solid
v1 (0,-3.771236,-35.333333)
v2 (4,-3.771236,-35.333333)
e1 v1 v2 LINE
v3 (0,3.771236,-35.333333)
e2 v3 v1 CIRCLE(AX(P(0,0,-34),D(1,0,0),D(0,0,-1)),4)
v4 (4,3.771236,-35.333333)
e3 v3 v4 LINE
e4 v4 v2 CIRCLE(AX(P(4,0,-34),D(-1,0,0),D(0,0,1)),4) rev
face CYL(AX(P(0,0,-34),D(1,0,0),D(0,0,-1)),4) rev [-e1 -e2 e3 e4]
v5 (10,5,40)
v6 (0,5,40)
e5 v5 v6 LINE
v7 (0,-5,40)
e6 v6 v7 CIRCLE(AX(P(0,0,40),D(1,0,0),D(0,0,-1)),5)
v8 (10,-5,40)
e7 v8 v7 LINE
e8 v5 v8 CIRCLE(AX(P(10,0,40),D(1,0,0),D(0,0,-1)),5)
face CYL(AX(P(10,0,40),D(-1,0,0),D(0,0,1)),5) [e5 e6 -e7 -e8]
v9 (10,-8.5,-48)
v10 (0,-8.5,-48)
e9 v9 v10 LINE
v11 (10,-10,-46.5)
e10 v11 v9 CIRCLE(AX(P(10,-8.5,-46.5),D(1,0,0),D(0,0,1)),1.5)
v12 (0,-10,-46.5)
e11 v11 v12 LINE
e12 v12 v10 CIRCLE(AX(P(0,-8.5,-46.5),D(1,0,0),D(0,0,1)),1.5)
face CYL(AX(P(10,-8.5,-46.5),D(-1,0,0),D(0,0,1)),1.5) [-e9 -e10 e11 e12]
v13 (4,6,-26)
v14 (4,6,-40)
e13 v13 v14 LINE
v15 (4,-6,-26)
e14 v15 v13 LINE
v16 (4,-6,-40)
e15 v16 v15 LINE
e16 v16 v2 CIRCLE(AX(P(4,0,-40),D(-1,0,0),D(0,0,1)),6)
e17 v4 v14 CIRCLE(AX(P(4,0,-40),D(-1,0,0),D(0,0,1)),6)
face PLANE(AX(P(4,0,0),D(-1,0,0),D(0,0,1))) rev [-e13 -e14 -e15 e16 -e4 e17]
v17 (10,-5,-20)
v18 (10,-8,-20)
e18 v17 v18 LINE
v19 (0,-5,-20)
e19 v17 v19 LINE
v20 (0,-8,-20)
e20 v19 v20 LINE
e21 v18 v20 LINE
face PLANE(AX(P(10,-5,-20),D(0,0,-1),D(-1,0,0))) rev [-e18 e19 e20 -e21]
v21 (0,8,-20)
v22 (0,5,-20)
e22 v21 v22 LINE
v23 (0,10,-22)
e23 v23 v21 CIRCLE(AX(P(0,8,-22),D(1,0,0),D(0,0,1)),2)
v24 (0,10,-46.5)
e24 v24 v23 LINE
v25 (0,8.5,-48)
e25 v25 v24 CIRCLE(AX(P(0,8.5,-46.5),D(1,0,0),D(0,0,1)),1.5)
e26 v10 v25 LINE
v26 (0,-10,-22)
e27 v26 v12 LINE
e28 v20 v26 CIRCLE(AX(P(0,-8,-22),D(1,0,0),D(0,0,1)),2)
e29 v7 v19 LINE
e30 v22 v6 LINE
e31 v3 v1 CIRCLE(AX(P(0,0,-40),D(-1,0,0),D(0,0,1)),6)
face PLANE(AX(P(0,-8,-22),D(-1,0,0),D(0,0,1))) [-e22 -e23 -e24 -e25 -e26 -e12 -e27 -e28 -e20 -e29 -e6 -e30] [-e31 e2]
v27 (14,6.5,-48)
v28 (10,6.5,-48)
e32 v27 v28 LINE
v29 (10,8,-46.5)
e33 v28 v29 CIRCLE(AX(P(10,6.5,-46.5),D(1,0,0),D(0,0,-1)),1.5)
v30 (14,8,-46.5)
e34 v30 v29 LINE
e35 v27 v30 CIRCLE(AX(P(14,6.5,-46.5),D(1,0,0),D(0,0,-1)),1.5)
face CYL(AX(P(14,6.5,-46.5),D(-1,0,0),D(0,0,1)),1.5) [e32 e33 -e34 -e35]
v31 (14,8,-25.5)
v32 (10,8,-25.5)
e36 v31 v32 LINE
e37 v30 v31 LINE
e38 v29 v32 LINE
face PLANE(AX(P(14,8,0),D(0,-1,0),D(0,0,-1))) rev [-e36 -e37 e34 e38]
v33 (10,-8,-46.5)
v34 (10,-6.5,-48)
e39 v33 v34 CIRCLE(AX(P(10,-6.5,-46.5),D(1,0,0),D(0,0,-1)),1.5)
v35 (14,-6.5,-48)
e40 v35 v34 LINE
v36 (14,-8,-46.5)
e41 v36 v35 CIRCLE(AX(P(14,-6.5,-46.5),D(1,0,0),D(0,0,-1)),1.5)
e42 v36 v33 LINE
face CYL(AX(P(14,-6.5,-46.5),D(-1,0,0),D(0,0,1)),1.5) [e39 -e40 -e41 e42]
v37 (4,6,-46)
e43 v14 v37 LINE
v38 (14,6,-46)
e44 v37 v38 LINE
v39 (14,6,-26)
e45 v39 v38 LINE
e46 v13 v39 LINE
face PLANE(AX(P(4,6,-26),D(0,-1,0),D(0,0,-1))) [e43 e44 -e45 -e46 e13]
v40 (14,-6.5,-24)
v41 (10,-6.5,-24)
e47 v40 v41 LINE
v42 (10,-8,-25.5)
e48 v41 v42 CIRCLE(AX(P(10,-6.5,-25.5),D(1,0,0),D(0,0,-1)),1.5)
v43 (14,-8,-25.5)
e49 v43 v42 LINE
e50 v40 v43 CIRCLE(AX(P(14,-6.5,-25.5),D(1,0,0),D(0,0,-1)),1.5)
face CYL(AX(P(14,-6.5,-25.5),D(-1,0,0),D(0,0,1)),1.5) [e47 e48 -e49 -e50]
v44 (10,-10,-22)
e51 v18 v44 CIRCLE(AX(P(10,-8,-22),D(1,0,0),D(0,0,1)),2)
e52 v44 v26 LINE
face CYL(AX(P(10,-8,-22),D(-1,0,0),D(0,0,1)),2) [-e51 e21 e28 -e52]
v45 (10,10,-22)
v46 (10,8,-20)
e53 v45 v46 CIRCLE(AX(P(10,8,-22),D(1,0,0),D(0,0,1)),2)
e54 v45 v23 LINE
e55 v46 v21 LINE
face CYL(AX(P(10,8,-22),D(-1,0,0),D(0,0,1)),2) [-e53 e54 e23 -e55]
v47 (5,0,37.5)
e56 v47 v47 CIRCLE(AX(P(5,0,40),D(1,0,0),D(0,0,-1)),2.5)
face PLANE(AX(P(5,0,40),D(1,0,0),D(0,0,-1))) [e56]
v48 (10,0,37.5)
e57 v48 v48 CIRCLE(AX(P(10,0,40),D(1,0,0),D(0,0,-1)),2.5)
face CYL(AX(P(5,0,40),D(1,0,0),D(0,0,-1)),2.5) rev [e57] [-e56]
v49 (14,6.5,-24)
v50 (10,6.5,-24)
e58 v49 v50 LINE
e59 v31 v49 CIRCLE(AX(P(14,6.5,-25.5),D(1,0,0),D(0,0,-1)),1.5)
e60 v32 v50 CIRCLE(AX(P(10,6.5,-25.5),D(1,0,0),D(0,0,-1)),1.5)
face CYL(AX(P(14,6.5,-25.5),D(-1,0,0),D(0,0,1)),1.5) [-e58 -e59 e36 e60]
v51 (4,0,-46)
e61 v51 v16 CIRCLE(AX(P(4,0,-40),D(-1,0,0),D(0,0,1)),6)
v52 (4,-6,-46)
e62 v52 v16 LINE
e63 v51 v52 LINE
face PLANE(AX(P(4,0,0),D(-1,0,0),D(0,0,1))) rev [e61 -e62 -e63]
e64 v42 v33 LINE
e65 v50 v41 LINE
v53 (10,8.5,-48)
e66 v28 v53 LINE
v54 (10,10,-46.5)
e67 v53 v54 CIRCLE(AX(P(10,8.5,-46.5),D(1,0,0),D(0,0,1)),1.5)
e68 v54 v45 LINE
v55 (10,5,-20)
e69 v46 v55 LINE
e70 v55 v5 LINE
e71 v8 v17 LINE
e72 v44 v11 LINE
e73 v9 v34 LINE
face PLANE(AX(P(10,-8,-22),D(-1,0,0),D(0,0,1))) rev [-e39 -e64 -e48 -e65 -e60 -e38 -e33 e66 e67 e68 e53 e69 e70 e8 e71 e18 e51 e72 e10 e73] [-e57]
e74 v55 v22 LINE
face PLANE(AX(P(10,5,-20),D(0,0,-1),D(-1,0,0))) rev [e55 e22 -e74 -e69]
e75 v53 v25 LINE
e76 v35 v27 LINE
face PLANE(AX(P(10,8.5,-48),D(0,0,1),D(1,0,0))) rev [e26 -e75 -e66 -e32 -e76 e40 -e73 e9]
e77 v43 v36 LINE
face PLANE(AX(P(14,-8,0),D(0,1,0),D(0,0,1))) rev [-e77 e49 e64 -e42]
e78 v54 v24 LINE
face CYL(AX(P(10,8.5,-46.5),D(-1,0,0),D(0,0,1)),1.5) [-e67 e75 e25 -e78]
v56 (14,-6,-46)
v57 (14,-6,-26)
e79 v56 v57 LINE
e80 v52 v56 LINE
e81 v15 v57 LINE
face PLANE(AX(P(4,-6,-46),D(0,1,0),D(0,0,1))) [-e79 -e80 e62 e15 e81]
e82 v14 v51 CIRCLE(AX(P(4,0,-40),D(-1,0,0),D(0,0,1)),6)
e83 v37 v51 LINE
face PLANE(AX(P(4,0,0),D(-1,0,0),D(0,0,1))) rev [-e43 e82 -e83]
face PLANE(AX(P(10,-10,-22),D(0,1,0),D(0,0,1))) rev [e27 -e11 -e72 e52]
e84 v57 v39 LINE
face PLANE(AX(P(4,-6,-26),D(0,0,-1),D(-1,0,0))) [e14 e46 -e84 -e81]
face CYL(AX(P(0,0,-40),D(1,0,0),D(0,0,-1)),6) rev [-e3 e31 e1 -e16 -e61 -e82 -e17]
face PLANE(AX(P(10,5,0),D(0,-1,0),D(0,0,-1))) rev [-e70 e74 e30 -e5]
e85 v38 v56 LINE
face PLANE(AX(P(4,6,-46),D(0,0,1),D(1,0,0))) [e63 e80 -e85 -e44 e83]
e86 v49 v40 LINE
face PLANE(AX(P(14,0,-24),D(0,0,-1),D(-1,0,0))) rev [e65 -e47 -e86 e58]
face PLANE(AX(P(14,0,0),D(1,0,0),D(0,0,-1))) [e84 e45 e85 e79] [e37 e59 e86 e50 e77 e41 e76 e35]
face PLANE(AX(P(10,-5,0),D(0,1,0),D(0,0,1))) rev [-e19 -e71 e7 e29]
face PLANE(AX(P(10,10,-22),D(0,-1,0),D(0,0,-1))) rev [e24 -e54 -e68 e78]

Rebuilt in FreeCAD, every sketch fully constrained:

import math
import FreeCAD as App
import Part
import Sketcher


def add_polygon(sketch, points):
    """Adds a closed chain of lines whose ends are joined by coincident constraints."""
    first, n = sketch.GeometryCount, len(points)
    for a, b in zip(points, points[1:] + points[:1]):
        sketch.addGeometry(Part.LineSegment(App.Vector(*a, 0), App.Vector(*b, 0)), False)
    for i in range(n):
        sketch.addConstraint(Sketcher.Constraint("Coincident", first + i, 2, first + (i + 1) % n, 1))

doc = App.newDocument("Part")
params = doc.addObject("Spreadsheet::Sheet", "Params")
for row, (alias, value) in enumerate([
    ("sketch1_radius", "5 mm"),
    ("sketch1_radius2", "2 mm"),
    ("sketch1_radius3", "1.5 mm"),
    ("sketch1_width", "3 mm"),
    ("sketch1_height", "60 mm"),
    ("pad1_length", "10 mm"),
    ("sketch2_diameter", "5 mm"),
    ("pocket1_length", "5 mm"),
    ("sketch3_radius", "6 mm"),
    ("sketch3_radius2", "4 mm"),
    ("sketch4_width", "12 mm"),
    ("sketch4_height", "20 mm"),
    ("pocket3_length", "6 mm"),
    ("sketch5_radius", "1.5 mm"),
    ("sketch5_width", "13 mm"),
    ("sketch5_width2", "12 mm"),
    ("sketch5_height", "21 mm"),
    ("sketch5_height2", "20 mm"),
    ("pad2_length", "4 mm"),
], start=1):
    params.set(f"A{row}", alias)
    params.set(f"B{row}", "=" + value)
    params.setAlias(f"B{row}", alias)

body = doc.addObject("PartDesign::Body", "Body")

# Sketch on YZ plane
sketch1 = doc.addObject("Sketcher::SketchObject", "Sketch")
body.addObject(sketch1)
sketch1.AttachmentSupport = (doc.YZ_Plane, [""])
sketch1.MapMode = "FlatFace"
sketch1.addGeometry([
    Part.ArcOfCircle(Part.Circle(App.Vector(0, 40, 0), App.Vector(0, 0, 1), 5), math.radians(0), math.radians(180)),  # 0
    Part.LineSegment(App.Vector(-5, 40, 0), App.Vector(-5, -20, 0)),  # 1
    Part.LineSegment(App.Vector(-5, -20, 0), App.Vector(-8, -20, 0)),  # 2
    Part.ArcOfCircle(Part.Circle(App.Vector(-8, -22, 0), App.Vector(0, 0, 1), 2), math.radians(90), math.radians(180)),  # 3
    Part.LineSegment(App.Vector(-10, -22, 0), App.Vector(-10, -46.5, 0)),  # 4
    Part.ArcOfCircle(Part.Circle(App.Vector(-8.5, -46.5, 0), App.Vector(0, 0, 1), 1.5), math.radians(180), math.radians(270)),  # 5
    Part.LineSegment(App.Vector(-8.5, -48, 0), App.Vector(8.5, -48, 0)),  # 6
    Part.ArcOfCircle(Part.Circle(App.Vector(8.5, -46.5, 0), App.Vector(0, 0, 1), 1.5), math.radians(-90), math.radians(0)),  # 7
    Part.LineSegment(App.Vector(10, -46.5, 0), App.Vector(10, -22, 0)),  # 8
    Part.ArcOfCircle(Part.Circle(App.Vector(8, -22, 0), App.Vector(0, 0, 1), 2), math.radians(0), math.radians(90)),  # 9
    Part.LineSegment(App.Vector(8, -20, 0), App.Vector(5, -20, 0)),  # 10
    Part.LineSegment(App.Vector(5, -20, 0), App.Vector(5, 40, 0)),  # 11
], False)
sketch1.addConstraint([
    Sketcher.Constraint("Tangent", 0, 2, 1, 1),
    Sketcher.Constraint("Coincident", 1, 2, 2, 1),
    Sketcher.Constraint("Tangent", 2, 2, 3, 1),
    Sketcher.Constraint("Tangent", 3, 2, 4, 1),
    Sketcher.Constraint("Tangent", 4, 2, 5, 1),
    Sketcher.Constraint("Tangent", 5, 2, 6, 1),
    Sketcher.Constraint("Tangent", 6, 2, 7, 1),
    Sketcher.Constraint("Tangent", 7, 2, 8, 1),
    Sketcher.Constraint("Tangent", 8, 2, 9, 1),
    Sketcher.Constraint("Tangent", 9, 2, 10, 1),
    Sketcher.Constraint("Coincident", 10, 2, 11, 1),
    Sketcher.Constraint("Tangent", 11, 2, 0, 1),
    Sketcher.Constraint("Vertical", 1),
    Sketcher.Constraint("Horizontal", 2),
    Sketcher.Constraint("Vertical", 4),
    Sketcher.Constraint("Horizontal", 6),
    Sketcher.Constraint("Vertical", 8),
    Sketcher.Constraint("Horizontal", 10),
    Sketcher.Constraint("Vertical", 11),
    Sketcher.Constraint("Equal", 5, 7),
    Sketcher.Constraint("Equal", 3, 9),
    Sketcher.Constraint("Symmetric", 3, 3, 9, 3, -2),
    Sketcher.Constraint("PointOnObject", 0, 3, -2),
    Sketcher.Constraint("Radius", 0, 5.0),
    Sketcher.Constraint("Radius", 3, 2.0),
    Sketcher.Constraint("Radius", 5, 1.5),
    Sketcher.Constraint("DistanceX", 2, 2, 2, 1, 3.0),
    Sketcher.Constraint("DistanceY", 1, 2, 1, 1, 60.0),
    Sketcher.Constraint("DistanceY", 4, 2, 4, 1, 24.5),
    Sketcher.Constraint("DistanceY", -1, 1, 0, 3, 40.0),
])
sketch1.setExpression("Constraints[23]", "Params.sketch1_radius")
sketch1.setExpression("Constraints[24]", "Params.sketch1_radius2")
sketch1.setExpression("Constraints[25]", "Params.sketch1_radius3")
sketch1.setExpression("Constraints[26]", "Params.sketch1_width")
sketch1.setExpression("Constraints[27]", "Params.sketch1_height")
pad1 = doc.addObject("PartDesign::Pad", "Pad")
body.addObject(pad1)
pad1.Profile = sketch1
pad1.setExpression("Length", "Params.pad1_length")

# Sketch on YZ plane
sketch2 = doc.addObject("Sketcher::SketchObject", "Sketch001")
body.addObject(sketch2)
sketch2.AttachmentSupport = (doc.YZ_Plane, [""])
sketch2.MapMode = "FlatFace"
sketch2.AttachmentOffset = App.Placement(App.Vector(0, 0, 10), App.Rotation())
sketch2.addGeometry(Part.Circle(App.Vector(0, 40, 0), App.Vector(0, 0, 1), 2.5), False)
sketch2.addConstraint([
    Sketcher.Constraint("PointOnObject", 0, 3, -2),
    Sketcher.Constraint("Diameter", 0, 5.0),
    Sketcher.Constraint("DistanceY", -1, 1, 0, 3, 40.0),
])
sketch2.setExpression("Constraints[1]", "Params.sketch2_diameter")
pocket1 = doc.addObject("PartDesign::Pocket", "Pocket")
body.addObject(pocket1)
pocket1.Profile = sketch2
pocket1.setExpression("Length", "Params.pocket1_length")

# Sketch on YZ plane
sketch3 = doc.addObject("Sketcher::SketchObject", "Sketch002")
body.addObject(sketch3)
sketch3.AttachmentSupport = (doc.YZ_Plane, [""])
sketch3.MapMode = "FlatFace"
sketch3.AttachmentOffset = App.Placement(App.Vector(0, 0, 10), App.Rotation())
sketch3.addGeometry([
    Part.ArcOfCircle(Part.Circle(App.Vector(0, -40, 0), App.Vector(0, 0, 1), 6), math.radians(129), math.radians(411)),
    Part.ArcOfCircle(Part.Circle(App.Vector(0, -34, 0), App.Vector(0, 0, 1), 4), math.radians(-19), math.radians(199)),
], False)
sketch3.addConstraint([
    Sketcher.Constraint("Coincident", 0, 1, 1, 2),
    Sketcher.Constraint("Coincident", 1, 1, 0, 2),
    Sketcher.Constraint("Symmetric", 0, 1, 1, 1, -2),
    Sketcher.Constraint("Radius", 0, 6.0),
    Sketcher.Constraint("Radius", 1, 4.0),
    Sketcher.Constraint("DistanceY", 0, 3, -1, 1, 40.0),
    Sketcher.Constraint("DistanceY", 1, 3, -1, 1, 34.0),
])
sketch3.setExpression("Constraints[3]", "Params.sketch3_radius")
sketch3.setExpression("Constraints[4]", "Params.sketch3_radius2")
pocket2 = doc.addObject("PartDesign::Pocket", "Pocket001")
body.addObject(pocket2)
pocket2.Profile = sketch3
pocket2.Type = "ThroughAll"
pocket2.Midplane = True

# Sketch on YZ plane
sketch4 = doc.addObject("Sketcher::SketchObject", "Sketch003")
body.addObject(sketch4)
sketch4.AttachmentSupport = (doc.YZ_Plane, [""])
sketch4.MapMode = "FlatFace"
sketch4.AttachmentOffset = App.Placement(App.Vector(0, 0, 10), App.Rotation())
add_polygon(sketch4, [(6, -26), (-6, -26), (-6, -46), (6, -46)])  # lines 0-3
sketch4.addConstraint([
    Sketcher.Constraint("Horizontal", 0),
    Sketcher.Constraint("Vertical", 1),
    Sketcher.Constraint("Horizontal", 2),
    Sketcher.Constraint("Vertical", 3),
    Sketcher.Constraint("DistanceX", 0, 2, 0, 1, 12.0),
    Sketcher.Constraint("DistanceY", 1, 2, 1, 1, 20.0),
    Sketcher.Constraint("DistanceX", 0, 2, -1, 1, 6.0),
    Sketcher.Constraint("DistanceY", 0, 2, -1, 1, 26.0),
])
sketch4.setExpression("Constraints[8]", "Params.sketch4_width")
sketch4.setExpression("Constraints[9]", "Params.sketch4_height")
pocket3 = doc.addObject("PartDesign::Pocket", "Pocket002")
body.addObject(pocket3)
pocket3.Profile = sketch4
pocket3.setExpression("Length", "Params.pocket3_length")

# Sketch on YZ plane
sketch5 = doc.addObject("Sketcher::SketchObject", "Sketch004")
body.addObject(sketch5)
sketch5.AttachmentSupport = (doc.YZ_Plane, [""])
sketch5.MapMode = "FlatFace"
sketch5.AttachmentOffset = App.Placement(App.Vector(0, 0, 10), App.Rotation())
sketch5.addGeometry(Part.ArcOfCircle(Part.Circle(App.Vector(6.5, -25.5, 0), App.Vector(0, 0, 1), 1.5), math.radians(0), math.radians(90)), False)  # 0
sketch5.addGeometry(Part.LineSegment(App.Vector(6.5, -24, 0), App.Vector(-6.5, -24, 0)), False)  # 1
sketch5.addGeometry(Part.ArcOfCircle(Part.Circle(App.Vector(-6.5, -25.5, 0), App.Vector(0, 0, 1), 1.5), math.radians(90), math.radians(180)), False)  # 2
sketch5.addGeometry(Part.LineSegment(App.Vector(-8, -25.5, 0), App.Vector(-8, -46.5, 0)), False)  # 3
sketch5.addGeometry(Part.ArcOfCircle(Part.Circle(App.Vector(-6.5, -46.5, 0), App.Vector(0, 0, 1), 1.5), math.radians(180), math.radians(270)), False)  # 4
sketch5.addGeometry(Part.LineSegment(App.Vector(-6.5, -48, 0), App.Vector(6.5, -48, 0)), False)  # 5
sketch5.addGeometry(Part.ArcOfCircle(Part.Circle(App.Vector(6.5, -46.5, 0), App.Vector(0, 0, 1), 1.5), math.radians(-90), math.radians(0)), False)  # 6
sketch5.addGeometry(Part.LineSegment(App.Vector(8, -46.5, 0), App.Vector(8, -25.5, 0)), False)  # 7
add_polygon(sketch5, [(-6, -46), (-6, -26), (6, -26), (6, -46)])  # lines 8-11
sketch5.addConstraint([
    Sketcher.Constraint("Tangent", 0, 2, 1, 1),
    Sketcher.Constraint("Tangent", 1, 2, 2, 1),
    Sketcher.Constraint("Tangent", 2, 2, 3, 1),
    Sketcher.Constraint("Tangent", 3, 2, 4, 1),
    Sketcher.Constraint("Tangent", 4, 2, 5, 1),
    Sketcher.Constraint("Tangent", 5, 2, 6, 1),
    Sketcher.Constraint("Tangent", 6, 2, 7, 1),
    Sketcher.Constraint("Tangent", 7, 2, 0, 1),
    Sketcher.Constraint("Horizontal", 1),
    Sketcher.Constraint("Vertical", 3),
    Sketcher.Constraint("Horizontal", 5),
    Sketcher.Constraint("Vertical", 7),
    Sketcher.Constraint("Vertical", 8),
    Sketcher.Constraint("Horizontal", 9),
    Sketcher.Constraint("Vertical", 10),
    Sketcher.Constraint("Horizontal", 11),
    Sketcher.Constraint("Equal", 0, 2),
    Sketcher.Constraint("Equal", 2, 4),
    Sketcher.Constraint("Equal", 4, 6),
    Sketcher.Constraint("Radius", 0, 1.5),
    Sketcher.Constraint("DistanceX", 1, 2, 1, 1, 13.0),
    Sketcher.Constraint("DistanceX", 9, 1, 9, 2, 12.0),
    Sketcher.Constraint("DistanceY", 3, 2, 3, 1, 21.0),
    Sketcher.Constraint("DistanceY", 8, 1, 8, 2, 20.0),
    Sketcher.Constraint("DistanceY", 0, 2, -1, 1, 24.0),
    Sketcher.Constraint("DistanceX", 2, 2, -1, 1, 8.0),
    Sketcher.Constraint("DistanceX", 8, 2, -1, 1, 6.0),
    Sketcher.Constraint("DistanceY", 8, 2, -1, 1, 26.0),
])
sketch5.setExpression("Constraints[23]", "Params.sketch5_radius")
sketch5.setExpression("Constraints[24]", "Params.sketch5_width")
sketch5.setExpression("Constraints[25]", "Params.sketch5_width2")
sketch5.setExpression("Constraints[26]", "Params.sketch5_height")
sketch5.setExpression("Constraints[27]", "Params.sketch5_height2")
pad2 = doc.addObject("PartDesign::Pad", "Pad001")
body.addObject(pad2)
pad2.Profile = sketch5
pad2.setExpression("Length", "Params.pad2_length")

doc.recompute()
